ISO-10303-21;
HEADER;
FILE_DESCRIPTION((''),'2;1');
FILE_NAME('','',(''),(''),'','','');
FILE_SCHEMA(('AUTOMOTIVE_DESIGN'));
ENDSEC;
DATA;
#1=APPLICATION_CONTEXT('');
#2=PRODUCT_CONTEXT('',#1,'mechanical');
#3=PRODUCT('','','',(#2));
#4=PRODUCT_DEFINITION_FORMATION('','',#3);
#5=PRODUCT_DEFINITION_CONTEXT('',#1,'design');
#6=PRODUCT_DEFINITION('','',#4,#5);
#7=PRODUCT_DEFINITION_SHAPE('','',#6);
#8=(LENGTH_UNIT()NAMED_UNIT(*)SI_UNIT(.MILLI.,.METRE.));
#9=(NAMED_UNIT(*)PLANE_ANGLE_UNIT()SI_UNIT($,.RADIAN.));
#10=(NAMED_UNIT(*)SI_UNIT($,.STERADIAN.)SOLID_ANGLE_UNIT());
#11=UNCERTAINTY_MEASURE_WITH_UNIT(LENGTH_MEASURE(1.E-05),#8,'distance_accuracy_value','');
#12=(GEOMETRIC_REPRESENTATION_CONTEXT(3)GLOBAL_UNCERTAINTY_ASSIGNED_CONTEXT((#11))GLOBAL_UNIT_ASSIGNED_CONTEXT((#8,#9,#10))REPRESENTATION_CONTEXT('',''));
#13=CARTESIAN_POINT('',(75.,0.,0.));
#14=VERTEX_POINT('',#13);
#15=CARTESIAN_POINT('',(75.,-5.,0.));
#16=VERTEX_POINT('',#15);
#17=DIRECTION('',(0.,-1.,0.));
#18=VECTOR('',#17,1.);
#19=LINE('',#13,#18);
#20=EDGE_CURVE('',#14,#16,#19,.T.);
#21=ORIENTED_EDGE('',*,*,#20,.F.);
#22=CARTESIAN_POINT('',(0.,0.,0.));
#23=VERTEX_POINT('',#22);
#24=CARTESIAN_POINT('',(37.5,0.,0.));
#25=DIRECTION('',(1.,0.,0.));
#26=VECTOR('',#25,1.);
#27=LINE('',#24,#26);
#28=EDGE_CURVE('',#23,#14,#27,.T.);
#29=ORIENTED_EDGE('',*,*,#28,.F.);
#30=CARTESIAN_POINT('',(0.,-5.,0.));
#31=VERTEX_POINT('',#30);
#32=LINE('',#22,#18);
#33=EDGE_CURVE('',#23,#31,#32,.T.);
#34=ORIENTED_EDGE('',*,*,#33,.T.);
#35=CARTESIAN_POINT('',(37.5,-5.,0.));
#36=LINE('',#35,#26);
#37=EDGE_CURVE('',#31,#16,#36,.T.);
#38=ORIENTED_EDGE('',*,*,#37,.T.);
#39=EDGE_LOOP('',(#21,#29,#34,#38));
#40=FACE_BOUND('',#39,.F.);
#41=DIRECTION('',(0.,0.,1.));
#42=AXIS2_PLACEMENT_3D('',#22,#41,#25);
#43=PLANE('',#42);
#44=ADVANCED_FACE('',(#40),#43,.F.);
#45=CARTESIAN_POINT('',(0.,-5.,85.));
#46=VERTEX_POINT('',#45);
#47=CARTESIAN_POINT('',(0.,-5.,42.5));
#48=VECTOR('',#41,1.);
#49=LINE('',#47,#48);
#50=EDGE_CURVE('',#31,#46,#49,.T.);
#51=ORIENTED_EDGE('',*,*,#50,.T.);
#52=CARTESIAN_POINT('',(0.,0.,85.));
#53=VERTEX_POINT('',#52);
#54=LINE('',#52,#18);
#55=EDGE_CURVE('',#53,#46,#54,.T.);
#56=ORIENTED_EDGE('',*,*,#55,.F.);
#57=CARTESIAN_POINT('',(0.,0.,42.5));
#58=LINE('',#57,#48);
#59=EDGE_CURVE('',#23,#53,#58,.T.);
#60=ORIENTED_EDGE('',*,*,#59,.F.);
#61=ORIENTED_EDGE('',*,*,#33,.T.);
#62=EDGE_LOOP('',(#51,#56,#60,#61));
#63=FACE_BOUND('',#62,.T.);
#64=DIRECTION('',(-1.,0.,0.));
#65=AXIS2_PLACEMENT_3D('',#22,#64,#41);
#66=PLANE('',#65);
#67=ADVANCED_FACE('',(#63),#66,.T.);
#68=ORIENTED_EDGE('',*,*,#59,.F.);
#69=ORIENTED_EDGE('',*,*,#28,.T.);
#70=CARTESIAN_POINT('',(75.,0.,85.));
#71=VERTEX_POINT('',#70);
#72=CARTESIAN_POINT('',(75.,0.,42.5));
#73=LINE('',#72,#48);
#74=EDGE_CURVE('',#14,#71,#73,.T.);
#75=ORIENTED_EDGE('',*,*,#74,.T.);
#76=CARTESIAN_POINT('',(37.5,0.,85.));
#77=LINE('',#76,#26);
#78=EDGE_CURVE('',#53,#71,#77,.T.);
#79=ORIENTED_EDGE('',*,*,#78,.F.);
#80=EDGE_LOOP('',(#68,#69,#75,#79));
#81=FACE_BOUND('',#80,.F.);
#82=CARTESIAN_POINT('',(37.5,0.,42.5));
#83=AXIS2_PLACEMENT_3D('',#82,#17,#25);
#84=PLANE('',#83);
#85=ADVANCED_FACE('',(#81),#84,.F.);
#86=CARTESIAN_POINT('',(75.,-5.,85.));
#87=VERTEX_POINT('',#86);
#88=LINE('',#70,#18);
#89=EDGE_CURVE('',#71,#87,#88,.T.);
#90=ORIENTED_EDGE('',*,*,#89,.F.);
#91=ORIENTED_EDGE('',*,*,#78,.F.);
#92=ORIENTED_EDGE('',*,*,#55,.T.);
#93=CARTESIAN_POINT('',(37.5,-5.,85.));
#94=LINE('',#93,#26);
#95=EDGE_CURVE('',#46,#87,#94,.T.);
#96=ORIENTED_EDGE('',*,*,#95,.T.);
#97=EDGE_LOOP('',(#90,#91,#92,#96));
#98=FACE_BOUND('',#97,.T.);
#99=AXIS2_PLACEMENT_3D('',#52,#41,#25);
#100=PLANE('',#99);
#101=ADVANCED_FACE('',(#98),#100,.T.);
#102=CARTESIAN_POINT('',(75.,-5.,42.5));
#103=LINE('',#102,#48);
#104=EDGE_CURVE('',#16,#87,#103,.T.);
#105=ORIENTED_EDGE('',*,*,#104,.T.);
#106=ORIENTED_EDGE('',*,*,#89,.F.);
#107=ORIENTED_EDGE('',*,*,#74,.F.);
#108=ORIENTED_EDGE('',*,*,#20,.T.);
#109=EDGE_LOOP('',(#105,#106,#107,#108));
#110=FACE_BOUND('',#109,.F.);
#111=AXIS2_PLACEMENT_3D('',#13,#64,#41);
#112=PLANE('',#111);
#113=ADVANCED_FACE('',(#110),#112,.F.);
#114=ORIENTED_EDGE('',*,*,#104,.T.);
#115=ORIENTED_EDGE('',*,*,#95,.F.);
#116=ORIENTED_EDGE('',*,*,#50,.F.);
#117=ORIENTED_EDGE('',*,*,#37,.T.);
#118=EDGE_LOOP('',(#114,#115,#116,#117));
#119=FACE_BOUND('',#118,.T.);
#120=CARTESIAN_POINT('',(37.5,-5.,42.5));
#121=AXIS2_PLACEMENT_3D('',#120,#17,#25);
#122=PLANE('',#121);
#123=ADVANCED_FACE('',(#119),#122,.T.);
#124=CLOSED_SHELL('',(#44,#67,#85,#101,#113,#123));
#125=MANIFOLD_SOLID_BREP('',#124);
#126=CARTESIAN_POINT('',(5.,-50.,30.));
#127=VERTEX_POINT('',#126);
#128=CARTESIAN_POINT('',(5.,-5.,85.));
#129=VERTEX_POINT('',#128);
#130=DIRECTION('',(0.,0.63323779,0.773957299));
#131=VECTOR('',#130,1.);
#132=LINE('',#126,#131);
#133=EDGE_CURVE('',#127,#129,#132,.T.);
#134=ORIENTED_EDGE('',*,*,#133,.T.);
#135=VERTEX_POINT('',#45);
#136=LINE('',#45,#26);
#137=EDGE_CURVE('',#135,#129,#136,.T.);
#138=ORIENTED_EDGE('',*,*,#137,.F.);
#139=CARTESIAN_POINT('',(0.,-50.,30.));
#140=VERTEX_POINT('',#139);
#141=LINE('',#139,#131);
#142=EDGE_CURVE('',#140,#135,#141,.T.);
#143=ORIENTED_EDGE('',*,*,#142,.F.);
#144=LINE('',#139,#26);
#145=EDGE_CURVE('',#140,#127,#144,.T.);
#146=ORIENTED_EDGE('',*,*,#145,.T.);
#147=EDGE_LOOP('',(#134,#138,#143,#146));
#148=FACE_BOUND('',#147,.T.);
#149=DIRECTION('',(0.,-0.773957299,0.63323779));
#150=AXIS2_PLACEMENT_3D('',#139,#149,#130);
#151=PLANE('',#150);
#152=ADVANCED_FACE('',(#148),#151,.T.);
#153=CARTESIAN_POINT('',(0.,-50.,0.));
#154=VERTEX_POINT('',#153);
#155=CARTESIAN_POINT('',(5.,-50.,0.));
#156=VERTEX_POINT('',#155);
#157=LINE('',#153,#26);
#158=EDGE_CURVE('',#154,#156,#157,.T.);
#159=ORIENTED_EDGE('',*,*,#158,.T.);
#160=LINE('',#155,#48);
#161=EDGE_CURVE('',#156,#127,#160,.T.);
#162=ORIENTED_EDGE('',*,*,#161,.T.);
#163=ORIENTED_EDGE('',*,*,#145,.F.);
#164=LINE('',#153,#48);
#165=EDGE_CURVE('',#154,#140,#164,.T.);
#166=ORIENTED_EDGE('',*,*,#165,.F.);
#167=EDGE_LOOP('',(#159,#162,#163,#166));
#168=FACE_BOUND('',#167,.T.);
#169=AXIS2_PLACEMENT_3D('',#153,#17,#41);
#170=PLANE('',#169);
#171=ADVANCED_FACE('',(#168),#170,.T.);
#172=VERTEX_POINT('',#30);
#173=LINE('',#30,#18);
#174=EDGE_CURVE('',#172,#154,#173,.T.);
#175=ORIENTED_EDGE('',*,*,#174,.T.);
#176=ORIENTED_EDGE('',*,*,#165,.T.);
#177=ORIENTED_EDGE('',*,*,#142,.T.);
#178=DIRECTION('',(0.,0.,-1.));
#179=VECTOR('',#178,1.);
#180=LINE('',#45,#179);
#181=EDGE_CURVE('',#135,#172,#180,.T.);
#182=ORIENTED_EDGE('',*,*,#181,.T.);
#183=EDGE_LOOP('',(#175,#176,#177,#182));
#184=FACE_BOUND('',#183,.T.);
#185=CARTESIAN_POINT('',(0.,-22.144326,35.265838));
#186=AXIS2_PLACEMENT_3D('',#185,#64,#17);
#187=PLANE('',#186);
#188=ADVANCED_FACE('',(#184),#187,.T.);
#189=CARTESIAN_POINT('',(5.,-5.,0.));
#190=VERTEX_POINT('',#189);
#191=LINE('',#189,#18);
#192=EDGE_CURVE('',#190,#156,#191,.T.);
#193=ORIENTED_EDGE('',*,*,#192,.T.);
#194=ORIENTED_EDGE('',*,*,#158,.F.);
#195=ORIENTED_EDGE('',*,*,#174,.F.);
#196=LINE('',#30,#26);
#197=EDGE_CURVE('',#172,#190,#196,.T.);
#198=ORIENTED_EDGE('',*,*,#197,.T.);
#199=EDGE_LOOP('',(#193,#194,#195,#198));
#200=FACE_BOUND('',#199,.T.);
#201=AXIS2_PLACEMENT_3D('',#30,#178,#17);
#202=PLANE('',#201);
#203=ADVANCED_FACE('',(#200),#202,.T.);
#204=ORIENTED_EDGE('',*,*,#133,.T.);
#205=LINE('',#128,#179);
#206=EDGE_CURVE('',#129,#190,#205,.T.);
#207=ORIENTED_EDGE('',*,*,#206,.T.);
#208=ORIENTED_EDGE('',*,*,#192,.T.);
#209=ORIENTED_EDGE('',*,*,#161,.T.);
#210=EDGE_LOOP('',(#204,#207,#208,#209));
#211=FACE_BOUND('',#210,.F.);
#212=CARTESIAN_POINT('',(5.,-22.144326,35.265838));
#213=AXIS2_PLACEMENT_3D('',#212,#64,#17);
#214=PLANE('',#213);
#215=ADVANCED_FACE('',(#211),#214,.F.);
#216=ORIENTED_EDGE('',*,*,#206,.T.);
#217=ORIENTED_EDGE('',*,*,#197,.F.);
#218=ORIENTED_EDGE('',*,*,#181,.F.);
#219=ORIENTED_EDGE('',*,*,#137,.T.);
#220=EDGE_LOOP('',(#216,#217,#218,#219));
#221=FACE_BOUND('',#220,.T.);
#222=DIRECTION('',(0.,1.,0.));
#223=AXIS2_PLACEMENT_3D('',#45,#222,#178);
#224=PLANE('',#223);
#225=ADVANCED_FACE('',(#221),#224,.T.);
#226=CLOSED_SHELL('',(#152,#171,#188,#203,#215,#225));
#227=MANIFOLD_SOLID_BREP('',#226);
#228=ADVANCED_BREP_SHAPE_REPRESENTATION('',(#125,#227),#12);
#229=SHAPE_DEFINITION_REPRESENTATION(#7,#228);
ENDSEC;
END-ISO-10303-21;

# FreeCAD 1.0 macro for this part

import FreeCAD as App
import Part
import Sketcher

V = App.Vector
Q = App.Units.Quantity

doc = App.newDocument("Part")
body = doc.addObject("PartDesign::Body", "Body")

sketch1 = body.newObject("Sketcher::SketchObject", "Sketch")
sketch1.AttachmentSupport = (doc.getObject("XZ_Plane"), [""])
sketch1.MapMode = "FlatFace"
sketch1.addGeometry(Part.LineSegment(V(0, 85, 0), V(0, 0, 0)), False)
sketch1.addGeometry(Part.LineSegment(V(0, 0, 0), V(75, 0, 0)), False)
sketch1.addGeometry(Part.LineSegment(V(75, 0, 0), V(75, 85, 0)), False)
sketch1.addGeometry(Part.LineSegment(V(75, 85, 0), V(0, 85, 0)), False)
sketch1.addConstraint(Sketcher.Constraint("Coincident", 0, 2, 1, 1))
sketch1.addConstraint(Sketcher.Constraint("Coincident", 1, 2, 2, 1))
sketch1.addConstraint(Sketcher.Constraint("Coincident", 2, 2, 3, 1))
sketch1.addConstraint(Sketcher.Constraint("Coincident", 3, 2, 0, 1))
sketch1.addConstraint(Sketcher.Constraint("Vertical", 0))
sketch1.addConstraint(Sketcher.Constraint("Horizontal", 1))
sketch1.addConstraint(Sketcher.Constraint("Vertical", 2))
sketch1.addConstraint(Sketcher.Constraint("Horizontal", 3))
sketch1.addConstraint(Sketcher.Constraint("Coincident", 0, 2, -1, 1))
sketch1.addConstraint(Sketcher.Constraint("DistanceX", 1, 1, 1, 2, Q("75 mm")))
sketch1.addConstraint(Sketcher.Constraint("DistanceY", 0, 2, 0, 1, Q("85 mm")))
pad1 = body.newObject("PartDesign::Pad", "Pad")
pad1.Profile = sketch1
pad1.Length = 5
body2 = doc.addObject("PartDesign::Body", "Body001")

sketch2 = body2.newObject("Sketcher::SketchObject", "Sketch001")
sketch2.AttachmentSupport = (doc.getObject("YZ_Plane001"), [""])
sketch2.MapMode = "FlatFace"
sketch2.addGeometry(Part.LineSegment(V(-5, 85, 0), V(-5, 0, 0)), False)
sketch2.addGeometry(Part.LineSegment(V(-5, 0, 0), V(-50, 0, 0)), False)
sketch2.addGeometry(Part.LineSegment(V(-50, 0, 0), V(-50, 30, 0)), False)
sketch2.addGeometry(Part.LineSegment(V(-50, 30, 0), V(-5, 85, 0)), False)
sketch2.addConstraint(Sketcher.Constraint("Coincident", 0, 2, 1, 1))
sketch2.addConstraint(Sketcher.Constraint("Coincident", 1, 2, 2, 1))
sketch2.addConstraint(Sketcher.Constraint("Coincident", 2, 2, 3, 1))
sketch2.addConstraint(Sketcher.Constraint("Coincident", 3, 2, 0, 1))
sketch2.addConstraint(Sketcher.Constraint("Vertical", 0))
sketch2.addConstraint(Sketcher.Constraint("Horizontal", 1))
sketch2.addConstraint(Sketcher.Constraint("Vertical", 2))
sketch2.addConstraint(Sketcher.Constraint("PointOnObject", 0, 2, -1))
sketch2.addConstraint(Sketcher.Constraint("DistanceX", 1, 2, 1, 1, Q("45 mm")))
sketch2.addConstraint(Sketcher.Constraint("DistanceY", 0, 2, 0, 1, Q("85 mm")))
sketch2.addConstraint(Sketcher.Constraint("DistanceY", 2, 1, 2, 2, Q("30 mm")))
sketch2.addConstraint(Sketcher.Constraint("DistanceX", 0, 2, -1, 1, Q("5 mm")))
pad2 = body2.newObject("PartDesign::Pad", "Pad001")
pad2.Profile = sketch2
pad2.Length = 5

doc.recompute()
